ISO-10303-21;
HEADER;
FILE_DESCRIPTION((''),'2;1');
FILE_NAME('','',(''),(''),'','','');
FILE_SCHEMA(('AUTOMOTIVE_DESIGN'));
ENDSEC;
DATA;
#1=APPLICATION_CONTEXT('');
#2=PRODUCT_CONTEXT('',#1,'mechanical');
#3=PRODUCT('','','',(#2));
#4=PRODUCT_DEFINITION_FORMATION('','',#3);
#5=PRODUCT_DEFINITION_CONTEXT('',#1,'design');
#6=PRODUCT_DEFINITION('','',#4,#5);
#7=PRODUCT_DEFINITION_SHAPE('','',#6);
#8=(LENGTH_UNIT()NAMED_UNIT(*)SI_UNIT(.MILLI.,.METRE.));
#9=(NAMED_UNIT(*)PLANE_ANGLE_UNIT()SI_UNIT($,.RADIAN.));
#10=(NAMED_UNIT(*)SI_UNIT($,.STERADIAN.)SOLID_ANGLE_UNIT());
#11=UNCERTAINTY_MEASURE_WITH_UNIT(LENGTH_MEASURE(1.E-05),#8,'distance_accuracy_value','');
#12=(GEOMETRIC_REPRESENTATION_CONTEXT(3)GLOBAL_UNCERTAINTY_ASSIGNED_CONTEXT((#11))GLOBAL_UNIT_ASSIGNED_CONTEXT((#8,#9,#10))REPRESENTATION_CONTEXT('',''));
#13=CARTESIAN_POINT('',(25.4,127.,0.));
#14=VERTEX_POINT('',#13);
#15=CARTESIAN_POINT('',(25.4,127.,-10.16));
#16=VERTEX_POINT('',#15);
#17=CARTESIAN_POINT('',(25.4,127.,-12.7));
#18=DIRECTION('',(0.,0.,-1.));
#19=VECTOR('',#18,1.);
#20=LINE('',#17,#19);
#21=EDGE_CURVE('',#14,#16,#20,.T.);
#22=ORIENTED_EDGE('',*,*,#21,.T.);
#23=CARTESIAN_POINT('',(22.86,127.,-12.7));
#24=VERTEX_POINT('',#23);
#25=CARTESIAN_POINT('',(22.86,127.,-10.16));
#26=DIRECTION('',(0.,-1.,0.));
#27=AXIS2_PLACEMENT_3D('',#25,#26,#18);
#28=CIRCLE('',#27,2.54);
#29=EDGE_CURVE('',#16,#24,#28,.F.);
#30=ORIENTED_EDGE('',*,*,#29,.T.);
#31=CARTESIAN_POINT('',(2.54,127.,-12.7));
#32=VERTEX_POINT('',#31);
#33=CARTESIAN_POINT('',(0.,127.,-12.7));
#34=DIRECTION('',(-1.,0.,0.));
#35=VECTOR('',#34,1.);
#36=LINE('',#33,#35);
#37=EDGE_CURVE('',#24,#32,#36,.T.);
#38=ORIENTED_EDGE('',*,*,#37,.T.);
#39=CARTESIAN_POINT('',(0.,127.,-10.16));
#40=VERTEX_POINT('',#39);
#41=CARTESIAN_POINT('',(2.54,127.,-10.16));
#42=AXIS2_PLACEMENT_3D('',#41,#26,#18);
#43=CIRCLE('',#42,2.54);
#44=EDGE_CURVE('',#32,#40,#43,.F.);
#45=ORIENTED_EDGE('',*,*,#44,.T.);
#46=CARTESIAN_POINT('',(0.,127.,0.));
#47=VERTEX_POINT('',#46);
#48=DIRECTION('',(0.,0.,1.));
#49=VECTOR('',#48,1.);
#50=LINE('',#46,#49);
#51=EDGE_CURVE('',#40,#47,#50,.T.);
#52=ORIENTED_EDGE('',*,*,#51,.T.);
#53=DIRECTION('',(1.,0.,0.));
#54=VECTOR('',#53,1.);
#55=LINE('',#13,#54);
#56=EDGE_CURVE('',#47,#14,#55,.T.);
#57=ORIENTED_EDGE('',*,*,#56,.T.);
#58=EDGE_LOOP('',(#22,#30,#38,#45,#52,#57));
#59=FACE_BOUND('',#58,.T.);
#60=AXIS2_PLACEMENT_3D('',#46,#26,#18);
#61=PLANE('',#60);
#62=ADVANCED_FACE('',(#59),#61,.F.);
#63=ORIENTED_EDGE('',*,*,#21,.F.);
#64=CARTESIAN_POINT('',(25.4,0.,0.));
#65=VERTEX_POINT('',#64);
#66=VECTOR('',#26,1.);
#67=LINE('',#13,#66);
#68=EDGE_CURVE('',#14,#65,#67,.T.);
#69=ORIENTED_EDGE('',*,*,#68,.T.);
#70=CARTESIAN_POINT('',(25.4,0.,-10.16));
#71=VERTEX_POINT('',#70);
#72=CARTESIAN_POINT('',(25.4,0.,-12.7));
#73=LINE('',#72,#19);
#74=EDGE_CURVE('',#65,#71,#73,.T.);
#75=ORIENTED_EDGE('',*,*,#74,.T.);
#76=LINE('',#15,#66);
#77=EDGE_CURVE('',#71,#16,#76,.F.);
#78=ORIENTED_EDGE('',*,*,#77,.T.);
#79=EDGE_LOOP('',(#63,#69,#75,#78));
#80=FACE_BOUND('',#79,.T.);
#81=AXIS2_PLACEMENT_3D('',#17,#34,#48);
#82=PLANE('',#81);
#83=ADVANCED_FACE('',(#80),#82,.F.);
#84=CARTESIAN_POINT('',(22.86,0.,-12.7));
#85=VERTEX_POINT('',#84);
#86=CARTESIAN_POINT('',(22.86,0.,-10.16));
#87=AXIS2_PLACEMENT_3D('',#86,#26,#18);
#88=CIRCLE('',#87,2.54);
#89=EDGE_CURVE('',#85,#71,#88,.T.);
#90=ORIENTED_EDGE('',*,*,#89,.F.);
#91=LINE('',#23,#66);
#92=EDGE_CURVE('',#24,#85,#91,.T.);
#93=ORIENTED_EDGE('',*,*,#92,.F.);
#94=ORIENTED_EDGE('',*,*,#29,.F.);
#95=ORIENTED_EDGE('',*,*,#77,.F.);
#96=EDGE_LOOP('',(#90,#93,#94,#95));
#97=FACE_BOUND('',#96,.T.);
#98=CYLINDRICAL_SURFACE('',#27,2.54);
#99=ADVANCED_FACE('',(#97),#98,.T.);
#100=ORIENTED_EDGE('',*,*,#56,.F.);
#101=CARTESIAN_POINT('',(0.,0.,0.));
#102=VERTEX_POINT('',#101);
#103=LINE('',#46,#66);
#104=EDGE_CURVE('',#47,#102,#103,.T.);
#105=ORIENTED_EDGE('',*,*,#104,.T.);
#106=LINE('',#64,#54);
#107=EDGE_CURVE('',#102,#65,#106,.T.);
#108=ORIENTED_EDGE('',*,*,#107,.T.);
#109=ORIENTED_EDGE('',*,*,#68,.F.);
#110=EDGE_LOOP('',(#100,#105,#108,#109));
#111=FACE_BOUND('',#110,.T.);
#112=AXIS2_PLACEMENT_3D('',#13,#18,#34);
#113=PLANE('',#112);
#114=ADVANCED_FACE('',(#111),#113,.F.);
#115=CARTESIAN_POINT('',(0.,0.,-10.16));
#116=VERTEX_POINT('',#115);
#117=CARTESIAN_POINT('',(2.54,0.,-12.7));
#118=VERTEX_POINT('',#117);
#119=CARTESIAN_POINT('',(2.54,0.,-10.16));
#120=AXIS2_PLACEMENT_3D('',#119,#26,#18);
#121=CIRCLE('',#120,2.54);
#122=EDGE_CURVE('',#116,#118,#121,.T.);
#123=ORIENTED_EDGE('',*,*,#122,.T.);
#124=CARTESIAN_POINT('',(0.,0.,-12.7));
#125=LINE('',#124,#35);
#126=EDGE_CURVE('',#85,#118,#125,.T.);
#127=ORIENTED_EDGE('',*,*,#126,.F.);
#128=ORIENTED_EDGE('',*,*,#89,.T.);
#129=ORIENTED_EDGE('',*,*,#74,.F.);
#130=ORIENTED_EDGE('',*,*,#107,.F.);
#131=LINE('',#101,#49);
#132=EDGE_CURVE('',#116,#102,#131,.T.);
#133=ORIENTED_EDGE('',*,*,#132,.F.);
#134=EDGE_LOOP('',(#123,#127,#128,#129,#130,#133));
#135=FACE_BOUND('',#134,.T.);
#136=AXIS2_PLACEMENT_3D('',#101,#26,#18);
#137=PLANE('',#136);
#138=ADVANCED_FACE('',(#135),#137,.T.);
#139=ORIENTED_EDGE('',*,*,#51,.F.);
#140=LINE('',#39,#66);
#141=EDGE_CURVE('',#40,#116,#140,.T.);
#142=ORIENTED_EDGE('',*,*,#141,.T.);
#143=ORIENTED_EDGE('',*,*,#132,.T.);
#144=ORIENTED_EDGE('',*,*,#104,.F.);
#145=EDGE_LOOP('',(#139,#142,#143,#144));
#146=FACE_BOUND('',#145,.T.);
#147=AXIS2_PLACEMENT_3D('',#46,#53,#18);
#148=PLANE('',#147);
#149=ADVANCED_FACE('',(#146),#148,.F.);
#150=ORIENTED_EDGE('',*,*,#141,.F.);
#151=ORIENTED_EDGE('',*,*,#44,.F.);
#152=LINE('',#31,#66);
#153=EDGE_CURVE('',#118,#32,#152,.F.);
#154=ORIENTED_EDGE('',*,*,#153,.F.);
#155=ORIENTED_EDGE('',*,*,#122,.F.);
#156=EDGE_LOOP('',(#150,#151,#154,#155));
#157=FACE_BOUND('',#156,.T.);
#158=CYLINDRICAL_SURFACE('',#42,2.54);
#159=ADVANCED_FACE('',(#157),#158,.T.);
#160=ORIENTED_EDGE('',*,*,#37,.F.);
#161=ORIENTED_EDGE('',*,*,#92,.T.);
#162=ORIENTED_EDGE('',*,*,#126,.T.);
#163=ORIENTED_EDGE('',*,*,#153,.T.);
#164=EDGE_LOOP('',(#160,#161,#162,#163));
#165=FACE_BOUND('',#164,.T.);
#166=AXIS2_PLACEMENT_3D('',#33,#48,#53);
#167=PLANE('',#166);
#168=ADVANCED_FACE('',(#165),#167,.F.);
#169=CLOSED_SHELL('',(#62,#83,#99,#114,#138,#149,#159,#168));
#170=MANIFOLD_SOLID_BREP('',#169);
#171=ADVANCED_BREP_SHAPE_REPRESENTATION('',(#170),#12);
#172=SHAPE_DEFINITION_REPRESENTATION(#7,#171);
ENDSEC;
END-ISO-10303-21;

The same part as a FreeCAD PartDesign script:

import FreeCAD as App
import Part
import Sketcher
Q = App.Units.Quantity


def edges_at(feature, points):
    """Names of the edges that pass closest to the given points."""
    edges = feature.Shape.Edges
    near = lambda p: min(range(len(edges)), key=lambda i: edges[i].distToShape(Part.Vertex(*p))[0])
    return sorted({f"Edge{near(p) + 1}" for p in points})

doc = App.newDocument("Part")
body = doc.addObject("PartDesign::Body", "Body")

# Sketch on XZ plane
sketch1 = doc.addObject("Sketcher::SketchObject", "Sketch")
body.addObject(sketch1)
sketch1.AttachmentSupport = (doc.XZ_Plane, [""])
sketch1.MapMode = "FlatFace"
sketch1.addGeometry([
    Part.LineSegment(App.Vector(0, -13, 0), App.Vector(0, 0, 0)),
    Part.LineSegment(App.Vector(0, 0, 0), App.Vector(25, 0, 0)),
    Part.LineSegment(App.Vector(25, 0, 0), App.Vector(25, -13, 0)),
    Part.LineSegment(App.Vector(25, -13, 0), App.Vector(0, -13, 0)),
], False)
sketch1.addConstraint([
    Sketcher.Constraint("Coincident", 0, 2, 1, 1),
    Sketcher.Constraint("Coincident", 1, 2, 2, 1),
    Sketcher.Constraint("Coincident", 2, 2, 3, 1),
    Sketcher.Constraint("Coincident", 3, 2, 0, 1),
    Sketcher.Constraint("Vertical", 0),
    Sketcher.Constraint("Horizontal", 1),
    Sketcher.Constraint("Vertical", 2),
    Sketcher.Constraint("Horizontal", 3),
    Sketcher.Constraint("Coincident", 0, 2, -1, 1),
    Sketcher.Constraint("DistanceX", 1, 1, 1, 2, Q("1 in")),
    Sketcher.Constraint("DistanceY", 0, 1, 0, 2, Q("0.5 in")),
])
pad1 = doc.addObject("PartDesign::Pad", "Pad")
body.addObject(pad1)
pad1.Profile = sketch1
pad1.Length = Q("5 in")
pad1.Reversed = True
doc.recompute()

fillet = doc.addObject("PartDesign::Fillet", "Fillet")
body.addObject(fillet)
fillet.Base = (pad1, edges_at(pad1, [(0, 63.5, -12.7), (25.4, 63.5, -12.7)]))
fillet.Radius = Q("0.1 in")

doc.recompute()
